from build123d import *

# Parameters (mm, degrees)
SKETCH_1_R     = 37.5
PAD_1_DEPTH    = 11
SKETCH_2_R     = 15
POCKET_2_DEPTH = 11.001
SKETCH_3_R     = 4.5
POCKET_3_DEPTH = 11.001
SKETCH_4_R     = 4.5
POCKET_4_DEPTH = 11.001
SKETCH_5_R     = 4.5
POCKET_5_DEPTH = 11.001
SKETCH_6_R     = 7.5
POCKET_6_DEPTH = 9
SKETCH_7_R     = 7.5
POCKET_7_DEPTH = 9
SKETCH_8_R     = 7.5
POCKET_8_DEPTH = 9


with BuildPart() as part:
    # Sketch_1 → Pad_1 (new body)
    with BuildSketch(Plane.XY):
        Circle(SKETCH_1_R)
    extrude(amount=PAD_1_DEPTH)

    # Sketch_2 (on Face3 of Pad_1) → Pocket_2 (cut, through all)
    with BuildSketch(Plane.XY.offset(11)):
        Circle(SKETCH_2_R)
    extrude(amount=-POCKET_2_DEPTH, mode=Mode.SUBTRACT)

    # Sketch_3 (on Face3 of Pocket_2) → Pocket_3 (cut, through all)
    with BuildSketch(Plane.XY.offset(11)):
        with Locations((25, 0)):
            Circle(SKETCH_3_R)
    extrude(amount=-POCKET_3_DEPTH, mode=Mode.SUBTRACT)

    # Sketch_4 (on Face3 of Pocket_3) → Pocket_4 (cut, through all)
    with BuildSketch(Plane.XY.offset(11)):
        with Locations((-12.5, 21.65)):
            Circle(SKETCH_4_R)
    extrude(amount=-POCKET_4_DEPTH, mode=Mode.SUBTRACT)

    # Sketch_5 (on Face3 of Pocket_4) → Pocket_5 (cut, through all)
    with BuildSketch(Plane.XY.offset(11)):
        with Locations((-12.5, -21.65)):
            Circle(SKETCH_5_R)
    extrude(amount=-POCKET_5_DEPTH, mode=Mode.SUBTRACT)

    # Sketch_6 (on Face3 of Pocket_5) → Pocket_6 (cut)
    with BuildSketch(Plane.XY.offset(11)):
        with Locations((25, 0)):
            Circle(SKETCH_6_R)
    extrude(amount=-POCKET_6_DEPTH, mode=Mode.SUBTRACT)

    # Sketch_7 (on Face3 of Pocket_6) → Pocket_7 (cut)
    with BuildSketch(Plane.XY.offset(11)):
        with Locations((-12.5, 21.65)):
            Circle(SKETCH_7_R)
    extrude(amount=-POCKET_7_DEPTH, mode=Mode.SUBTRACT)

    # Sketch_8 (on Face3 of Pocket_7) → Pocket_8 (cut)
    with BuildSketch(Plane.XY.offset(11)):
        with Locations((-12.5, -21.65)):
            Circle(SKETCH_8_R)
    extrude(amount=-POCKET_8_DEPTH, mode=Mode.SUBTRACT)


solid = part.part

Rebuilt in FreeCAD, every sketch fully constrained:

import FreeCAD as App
import Part
import Sketcher

V = App.Vector
Q = App.Units.Quantity

doc = App.newDocument("Part")
body = doc.addObject("PartDesign::Body", "Body")

sketch1 = body.newObject("Sketcher::SketchObject", "Sketch")
sketch1.AttachmentSupport = (doc.getObject("XY_Plane"), [""])
sketch1.MapMode = "FlatFace"
sketch1.addGeometry(Part.Circle(V(0, 0, 0), V(0, 0, 1), 38), False)
sketch1.addConstraint([
    Sketcher.Constraint("Coincident", 0, 3, -1, 1),
    Sketcher.Constraint("Diameter", 0, Q("75 mm")),
])
pad1 = body.newObject("PartDesign::Pad", "Pad")
pad1.Profile = sketch1
pad1.Length = 11

sketch2 = body.newObject("Sketcher::SketchObject", "Sketch001")
sketch2.AttachmentSupport = (doc.getObject("XY_Plane"), [""])
sketch2.MapMode = "FlatFace"
sketch2.AttachmentOffset = App.Placement(V(0, 0, 11), App.Rotation())
sketch2.addGeometry(Part.Circle(V(0, 0, 0), V(0, 0, 1), 15), False)
sketch2.addConstraint([
    Sketcher.Constraint("Coincident", 0, 3, -1, 1),
    Sketcher.Constraint("Diameter", 0, Q("30 mm")),
])
pocket1 = body.newObject("PartDesign::Pocket", "Pocket")
pocket1.Profile = sketch2
pocket1.Type = "ThroughAll"

sketch3 = body.newObject("Sketcher::SketchObject", "Sketch002")
sketch3.AttachmentSupport = (doc.getObject("XY_Plane"), [""])
sketch3.MapMode = "FlatFace"
sketch3.AttachmentOffset = App.Placement(V(0, 0, 11), App.Rotation())
sketch3.addGeometry(Part.Circle(V(25, 0, 0), V(0, 0, 1), 4.5), False)
sketch3.addConstraint([
    Sketcher.Constraint("PointOnObject", 0, 3, -1),
    Sketcher.Constraint("Diameter", 0, Q("9 mm")),
    Sketcher.Constraint("DistanceX", -1, 1, 0, 3, Q("25 mm")),
])
pocket2 = body.newObject("PartDesign::Pocket", "Pocket001")
pocket2.Profile = sketch3
pocket2.Type = "ThroughAll"

sketch4 = body.newObject("Sketcher::SketchObject", "Sketch003")
sketch4.AttachmentSupport = (doc.getObject("XY_Plane"), [""])
sketch4.MapMode = "FlatFace"
sketch4.AttachmentOffset = App.Placement(V(0, 0, 11), App.Rotation())
sketch4.addGeometry(Part.Circle(V(-12.5, 21.6, 0), V(0, 0, 1), 4.5), False)
sketch4.addConstraint([
    Sketcher.Constraint("Diameter", 0, Q("9 mm")),
    Sketcher.Constraint("DistanceX", 0, 3, -1, 1, Q("12.5 mm")),
    Sketcher.Constraint("DistanceY", -1, 1, 0, 3, Q("21.65 mm")),
])
pocket3 = body.newObject("PartDesign::Pocket", "Pocket002")
pocket3.Profile = sketch4
pocket3.Type = "ThroughAll"

sketch5 = body.newObject("Sketcher::SketchObject", "Sketch004")
sketch5.AttachmentSupport = (doc.getObject("XY_Plane"), [""])
sketch5.MapMode = "FlatFace"
sketch5.AttachmentOffset = App.Placement(V(0, 0, 11), App.Rotation())
sketch5.addGeometry(Part.Circle(V(-12.5, -21.6, 0), V(0, 0, 1), 4.5), False)
sketch5.addConstraint([
    Sketcher.Constraint("Diameter", 0, Q("9 mm")),
    Sketcher.Constraint("DistanceX", 0, 3, -1, 1, Q("12.5 mm")),
    Sketcher.Constraint("DistanceY", 0, 3, -1, 1, Q("21.65 mm")),
])
pocket4 = body.newObject("PartDesign::Pocket", "Pocket003")
pocket4.Profile = sketch5
pocket4.Type = "ThroughAll"

sketch6 = body.newObject("Sketcher::SketchObject", "Sketch005")
sketch6.AttachmentSupport = (doc.getObject("XY_Plane"), [""])
sketch6.MapMode = "FlatFace"
sketch6.AttachmentOffset = App.Placement(V(0, 0, 11), App.Rotation())
sketch6.addGeometry(Part.Circle(V(25, 0, 0), V(0, 0, 1), 8), False)
sketch6.addConstraint([
    Sketcher.Constraint("PointOnObject", 0, 3, -1),
    Sketcher.Constraint("Diameter", 0, Q("15 mm")),
    Sketcher.Constraint("DistanceX", -1, 1, 0, 3, Q("25 mm")),
])
pocket5 = body.newObject("PartDesign::Pocket", "Pocket004")
pocket5.Profile = sketch6
pocket5.Length = 9

sketch7 = body.newObject("Sketcher::SketchObject", "Sketch006")
sketch7.AttachmentSupport = (doc.getObject("XY_Plane"), [""])
sketch7.MapMode = "FlatFace"
sketch7.AttachmentOffset = App.Placement(V(0, 0, 11), App.Rotation())
sketch7.addGeometry(Part.Circle(V(-12, 22, 0), V(0, 0, 1), 8), False)
sketch7.addConstraint([
    Sketcher.Constraint("Diameter", 0, Q("15 mm")),
    Sketcher.Constraint("DistanceX", 0, 3, -1, 1, Q("12.5 mm")),
    Sketcher.Constraint("DistanceY", -1, 1, 0, 3, Q("21.65 mm")),
])
pocket6 = body.newObject("PartDesign::Pocket", "Pocket005")
pocket6.Profile = sketch7
pocket6.Length = 9

sketch8 = body.newObject("Sketcher::SketchObject", "Sketch007")
sketch8.AttachmentSupport = (doc.getObject("XY_Plane"), [""])
sketch8.MapMode = "FlatFace"
sketch8.AttachmentOffset = App.Placement(V(0, 0, 11), App.Rotation())
sketch8.addGeometry(Part.Circle(V(-12, -22, 0), V(0, 0, 1), 8), False)
sketch8.addConstraint([
    Sketcher.Constraint("Diameter", 0, Q("15 mm")),
    Sketcher.Constraint("DistanceX", 0, 3, -1, 1, Q("12.5 mm")),
    Sketcher.Constraint("DistanceY", 0, 3, -1, 1, Q("21.65 mm")),
])
pocket7 = body.newObject("PartDesign::Pocket", "Pocket006")
pocket7.Profile = sketch8
pocket7.Length = 9

doc.recompute()
